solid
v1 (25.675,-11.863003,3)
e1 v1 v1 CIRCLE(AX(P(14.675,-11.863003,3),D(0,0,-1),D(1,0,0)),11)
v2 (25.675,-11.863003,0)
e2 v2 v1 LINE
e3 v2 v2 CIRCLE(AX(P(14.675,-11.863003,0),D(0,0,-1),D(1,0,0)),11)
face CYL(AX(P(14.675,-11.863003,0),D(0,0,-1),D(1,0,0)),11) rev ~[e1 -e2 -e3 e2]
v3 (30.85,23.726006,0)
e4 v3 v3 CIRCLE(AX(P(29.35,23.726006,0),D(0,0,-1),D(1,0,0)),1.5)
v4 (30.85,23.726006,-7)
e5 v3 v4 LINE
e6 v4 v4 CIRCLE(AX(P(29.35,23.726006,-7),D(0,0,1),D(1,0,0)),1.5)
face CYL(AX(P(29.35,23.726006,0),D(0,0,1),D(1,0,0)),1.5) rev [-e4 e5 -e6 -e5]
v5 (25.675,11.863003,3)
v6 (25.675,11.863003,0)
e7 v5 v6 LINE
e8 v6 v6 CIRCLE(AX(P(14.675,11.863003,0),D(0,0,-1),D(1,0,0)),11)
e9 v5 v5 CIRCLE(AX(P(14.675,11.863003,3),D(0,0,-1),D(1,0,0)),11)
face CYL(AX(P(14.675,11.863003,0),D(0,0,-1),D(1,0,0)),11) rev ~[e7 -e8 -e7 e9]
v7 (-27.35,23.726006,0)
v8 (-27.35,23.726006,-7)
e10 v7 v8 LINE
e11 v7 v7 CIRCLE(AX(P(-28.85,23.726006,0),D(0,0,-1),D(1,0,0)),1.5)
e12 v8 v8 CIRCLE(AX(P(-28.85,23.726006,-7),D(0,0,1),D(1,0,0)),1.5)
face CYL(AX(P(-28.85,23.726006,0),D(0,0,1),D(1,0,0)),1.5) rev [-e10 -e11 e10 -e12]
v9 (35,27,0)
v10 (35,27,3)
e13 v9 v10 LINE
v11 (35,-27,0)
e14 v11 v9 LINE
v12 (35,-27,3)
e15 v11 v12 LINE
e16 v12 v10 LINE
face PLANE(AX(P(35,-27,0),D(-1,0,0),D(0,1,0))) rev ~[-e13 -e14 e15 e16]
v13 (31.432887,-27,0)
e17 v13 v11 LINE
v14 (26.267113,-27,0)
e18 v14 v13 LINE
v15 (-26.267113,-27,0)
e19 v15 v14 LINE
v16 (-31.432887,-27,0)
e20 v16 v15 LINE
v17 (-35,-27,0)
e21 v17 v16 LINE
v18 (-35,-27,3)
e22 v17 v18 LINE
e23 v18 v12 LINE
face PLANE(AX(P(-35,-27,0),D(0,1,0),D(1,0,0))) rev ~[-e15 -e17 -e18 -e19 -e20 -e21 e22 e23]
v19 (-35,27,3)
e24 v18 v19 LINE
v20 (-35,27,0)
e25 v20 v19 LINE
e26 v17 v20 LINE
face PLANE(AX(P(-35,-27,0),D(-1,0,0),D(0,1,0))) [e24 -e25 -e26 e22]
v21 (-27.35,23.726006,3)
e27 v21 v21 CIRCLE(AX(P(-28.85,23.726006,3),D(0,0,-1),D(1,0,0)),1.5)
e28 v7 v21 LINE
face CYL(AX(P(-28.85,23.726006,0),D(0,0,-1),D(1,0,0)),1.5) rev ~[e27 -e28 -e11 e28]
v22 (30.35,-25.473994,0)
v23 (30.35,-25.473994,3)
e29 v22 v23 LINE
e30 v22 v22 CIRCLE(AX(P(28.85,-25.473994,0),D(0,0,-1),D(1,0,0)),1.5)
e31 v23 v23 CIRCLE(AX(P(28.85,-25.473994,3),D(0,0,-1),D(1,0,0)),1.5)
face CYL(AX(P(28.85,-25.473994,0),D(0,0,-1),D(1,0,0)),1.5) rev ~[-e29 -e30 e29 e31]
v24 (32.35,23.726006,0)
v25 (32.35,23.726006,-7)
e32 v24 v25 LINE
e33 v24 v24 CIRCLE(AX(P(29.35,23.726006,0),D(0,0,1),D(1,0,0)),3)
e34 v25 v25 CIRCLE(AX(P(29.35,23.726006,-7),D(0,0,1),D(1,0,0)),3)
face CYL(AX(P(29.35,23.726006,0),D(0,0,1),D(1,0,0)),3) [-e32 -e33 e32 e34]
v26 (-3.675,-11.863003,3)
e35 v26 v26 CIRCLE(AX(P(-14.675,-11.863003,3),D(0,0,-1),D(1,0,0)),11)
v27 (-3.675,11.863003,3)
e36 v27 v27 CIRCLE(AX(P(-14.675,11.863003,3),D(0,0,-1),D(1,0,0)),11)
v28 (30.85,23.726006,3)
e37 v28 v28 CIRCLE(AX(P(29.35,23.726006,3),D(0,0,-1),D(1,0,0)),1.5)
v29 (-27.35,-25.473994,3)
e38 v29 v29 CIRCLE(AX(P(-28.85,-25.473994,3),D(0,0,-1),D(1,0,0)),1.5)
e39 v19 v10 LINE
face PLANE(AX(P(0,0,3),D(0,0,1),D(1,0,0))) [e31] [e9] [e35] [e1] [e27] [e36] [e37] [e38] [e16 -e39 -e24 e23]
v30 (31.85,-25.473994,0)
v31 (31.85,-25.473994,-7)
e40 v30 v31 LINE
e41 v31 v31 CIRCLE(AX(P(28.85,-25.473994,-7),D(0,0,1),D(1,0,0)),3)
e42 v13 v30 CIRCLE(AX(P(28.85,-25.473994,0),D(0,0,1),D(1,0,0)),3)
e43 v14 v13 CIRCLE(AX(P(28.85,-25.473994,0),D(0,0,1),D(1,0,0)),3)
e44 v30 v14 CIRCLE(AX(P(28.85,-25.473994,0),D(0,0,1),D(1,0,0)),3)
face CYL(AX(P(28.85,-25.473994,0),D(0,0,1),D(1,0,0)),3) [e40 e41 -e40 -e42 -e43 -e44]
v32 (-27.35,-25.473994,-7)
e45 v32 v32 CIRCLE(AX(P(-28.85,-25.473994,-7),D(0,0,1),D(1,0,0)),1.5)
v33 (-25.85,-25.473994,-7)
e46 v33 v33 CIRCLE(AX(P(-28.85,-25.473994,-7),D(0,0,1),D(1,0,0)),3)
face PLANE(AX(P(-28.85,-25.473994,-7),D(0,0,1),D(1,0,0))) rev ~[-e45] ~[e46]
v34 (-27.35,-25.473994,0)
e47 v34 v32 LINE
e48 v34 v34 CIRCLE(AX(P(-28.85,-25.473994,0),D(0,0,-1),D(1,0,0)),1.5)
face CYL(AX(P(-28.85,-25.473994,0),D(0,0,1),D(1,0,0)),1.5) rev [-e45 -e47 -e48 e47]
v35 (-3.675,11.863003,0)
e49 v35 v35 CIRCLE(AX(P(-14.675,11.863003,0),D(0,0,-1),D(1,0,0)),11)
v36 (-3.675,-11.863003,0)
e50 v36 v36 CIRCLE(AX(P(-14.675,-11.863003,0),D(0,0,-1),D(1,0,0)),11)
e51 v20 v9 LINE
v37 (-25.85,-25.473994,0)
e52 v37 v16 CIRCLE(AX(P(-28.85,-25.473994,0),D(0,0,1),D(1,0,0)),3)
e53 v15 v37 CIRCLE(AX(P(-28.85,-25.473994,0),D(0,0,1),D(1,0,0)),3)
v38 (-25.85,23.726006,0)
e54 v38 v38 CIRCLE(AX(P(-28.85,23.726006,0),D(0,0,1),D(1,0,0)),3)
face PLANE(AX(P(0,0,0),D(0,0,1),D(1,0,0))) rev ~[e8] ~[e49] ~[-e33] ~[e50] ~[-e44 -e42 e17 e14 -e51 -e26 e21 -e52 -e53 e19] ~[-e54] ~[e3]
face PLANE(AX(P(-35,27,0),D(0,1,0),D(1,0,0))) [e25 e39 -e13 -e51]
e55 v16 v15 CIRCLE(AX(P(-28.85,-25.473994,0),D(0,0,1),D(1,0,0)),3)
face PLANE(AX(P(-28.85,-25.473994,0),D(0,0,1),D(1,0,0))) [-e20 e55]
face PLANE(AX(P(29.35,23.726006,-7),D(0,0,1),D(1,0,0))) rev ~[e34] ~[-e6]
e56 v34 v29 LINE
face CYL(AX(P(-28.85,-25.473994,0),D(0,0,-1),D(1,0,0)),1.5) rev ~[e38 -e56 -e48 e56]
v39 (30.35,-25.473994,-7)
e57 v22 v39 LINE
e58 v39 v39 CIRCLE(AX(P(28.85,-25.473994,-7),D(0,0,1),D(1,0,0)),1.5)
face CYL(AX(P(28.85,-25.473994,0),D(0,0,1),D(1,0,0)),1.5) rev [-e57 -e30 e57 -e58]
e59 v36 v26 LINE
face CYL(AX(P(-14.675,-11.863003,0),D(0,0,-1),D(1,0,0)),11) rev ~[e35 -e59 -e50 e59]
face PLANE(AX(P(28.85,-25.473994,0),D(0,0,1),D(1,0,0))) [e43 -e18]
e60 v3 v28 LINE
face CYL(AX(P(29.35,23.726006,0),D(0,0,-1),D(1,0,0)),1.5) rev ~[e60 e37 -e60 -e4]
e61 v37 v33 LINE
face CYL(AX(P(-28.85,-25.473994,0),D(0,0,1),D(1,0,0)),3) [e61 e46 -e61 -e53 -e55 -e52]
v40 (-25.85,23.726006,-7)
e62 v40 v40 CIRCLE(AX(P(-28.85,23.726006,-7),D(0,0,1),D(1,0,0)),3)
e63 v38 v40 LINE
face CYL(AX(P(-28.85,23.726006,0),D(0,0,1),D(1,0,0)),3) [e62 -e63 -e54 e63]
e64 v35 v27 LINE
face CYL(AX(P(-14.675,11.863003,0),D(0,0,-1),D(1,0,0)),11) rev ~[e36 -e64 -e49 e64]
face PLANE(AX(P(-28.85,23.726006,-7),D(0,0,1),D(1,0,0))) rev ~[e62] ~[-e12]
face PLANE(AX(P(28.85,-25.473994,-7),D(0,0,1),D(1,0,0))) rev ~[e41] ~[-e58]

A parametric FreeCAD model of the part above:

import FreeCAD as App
import Part
import Sketcher
from FreeCAD import Vector
Q = App.Units.Quantity


def add_polygon(sketch, points):
    """Adds a closed chain of lines whose ends are joined by coincident constraints."""
    first, n = sketch.GeometryCount, len(points)
    for a, b in zip(points, points[1:] + points[:1]):
        sketch.addGeometry(Part.LineSegment(App.Vector(*a, 0), App.Vector(*b, 0)), False)
    for i in range(n):
        sketch.addConstraint(Sketcher.Constraint("Coincident", first + i, 2, first + (i + 1) % n, 1))

doc = App.newDocument("Part")
body = doc.addObject("PartDesign::Body", "Body")
body.AllowCompound = True

# Sketch on XY plane
sketch1 = body.newObject("Sketcher::SketchObject", "Sketch")
sketch1.AttachmentSupport = (doc.getObject("XY_Plane"), [""])
sketch1.MapMode = "FlatFace"
sketch1.addGeometry([
    Part.Circle(Vector(-28.9, -25.5, 0), Vector(0, 0, 1), 1.5),  # 0
    Part.Circle(Vector(28.9, -25.5, 0), Vector(0, 0, 1), 1.5),  # 1
    Part.Circle(Vector(-28.9, 23.7, 0), Vector(0, 0, 1), 1.5),  # 2
    Part.Circle(Vector(29.4, 23.7, 0), Vector(0, 0, 1), 1.5),  # 3
    Part.Circle(Vector(-14.7, -11.9, 0), Vector(0, 0, 1), 11),  # 4
    Part.Circle(Vector(-14.7, 11.9, 0), Vector(0, 0, 1), 11),  # 5
    Part.Circle(Vector(14.7, -11.9, 0), Vector(0, 0, 1), 11),  # 6
    Part.Circle(Vector(14.7, 11.9, 0), Vector(0, 0, 1), 11),  # 7
], False)
sketch1.addConstraint([
    Sketcher.Constraint("Equal", 0, 1),
    Sketcher.Constraint("Equal", 1, 2),
    Sketcher.Constraint("Equal", 2, 3),
    Sketcher.Constraint("Equal", 4, 5),
    Sketcher.Constraint("Equal", 5, 6),
    Sketcher.Constraint("Equal", 6, 7),
    Sketcher.Constraint("Symmetric", 5, 3, 6, 3, -1, 1),
    Sketcher.Constraint("Symmetric", 4, 3, 7, 3, -1, 1),
    Sketcher.Constraint("Symmetric", 0, 3, 1, 3, -2),
    Sketcher.Constraint("Symmetric", 4, 3, 6, 3, -2),
    Sketcher.Constraint("Horizontal", 2, 3, 3, 3),
    Sketcher.Constraint("Vertical", 0, 3, 2, 3),
    Sketcher.Constraint("Diameter", 0, Q("3 mm")),
    Sketcher.Constraint("Diameter", 4, Q("22 mm")),
    Sketcher.Constraint("DistanceX", 0, 3, 1, 3, Q("57.7 mm")),
    Sketcher.Constraint("DistanceY", 0, 3, 2, 3, Q("49.2 mm")),
    Sketcher.Constraint("DistanceX", 1, 3, 3, 3, Q("0.5 mm")),
    Sketcher.Constraint("DistanceX", 4, 3, 6, 3, Q("29.35 mm")),
    Sketcher.Constraint("DistanceY", 0, 3, 4, 3, Q("13.610991 mm")),
    Sketcher.Constraint("DistanceY", 0, 3, -1, 1, Q("25.473994 mm")),
])
pad1 = body.newObject("PartDesign::Pad", "Pad")
pad1.Profile = sketch1
pad1.Length = 20
pad1.Midplane = True
body2 = doc.addObject("PartDesign::Body", "Body001")
body2.AllowCompound = True

# Sketch on XY plane
sketch2 = body2.newObject("Sketcher::SketchObject", "Sketch001")
sketch2.AttachmentSupport = (doc.getObject("XY_Plane001"), [""])
sketch2.MapMode = "FlatFace"
sketch2.addGeometry([
    Part.Circle(Vector(-28.9, 23.7, 0), Vector(0, 0, 1), 3),
    Part.Circle(Vector(29.4, 23.7, 0), Vector(0, 0, 1), 3),
    Part.Circle(Vector(-28.9, -25.5, 0), Vector(0, 0, 1), 3),
    Part.Circle(Vector(28.9, -25.5, 0), Vector(0, 0, 1), 3),
], False)
sketch2.addConstraint([
    Sketcher.Constraint("Equal", 0, 1),
    Sketcher.Constraint("Equal", 1, 2),
    Sketcher.Constraint("Equal", 2, 3),
    Sketcher.Constraint("Symmetric", 2, 3, 3, 3, -2),
    Sketcher.Constraint("Horizontal", 0, 3, 1, 3),
    Sketcher.Constraint("Vertical", 0, 3, 2, 3),
    Sketcher.Constraint("Diameter", 0, Q("6 mm")),
    Sketcher.Constraint("DistanceX", 0, 3, 1, 3, Q("58.2 mm")),
    Sketcher.Constraint("DistanceY", 2, 3, 0, 3, Q("49.2 mm")),
    Sketcher.Constraint("DistanceX", 3, 3, 1, 3, Q("0.5 mm")),
    Sketcher.Constraint("DistanceY", -1, 1, 0, 3, Q("23.726006 mm")),
])
pad2 = body2.newObject("PartDesign::Pad", "Pad001")
pad2.Profile = sketch2
pad2.Length = 7
pad2.Reversed = True
body3 = doc.addObject("PartDesign::Body", "Body002")

# Sketch on XY plane
sketch3 = body3.newObject("Sketcher::SketchObject", "Sketch002")
sketch3.AttachmentSupport = (doc.getObject("XY_Plane002"), [""])
sketch3.MapMode = "FlatFace"
add_polygon(sketch3, [(-35, 27), (-35, -27), (35, -27), (35, 27)])  # lines 0-3
sketch3.addConstraint([
    Sketcher.Constraint("Vertical", 0),
    Sketcher.Constraint("Horizontal", 1),
    Sketcher.Constraint("Vertical", 2),
    Sketcher.Constraint("Horizontal", 3),
    Sketcher.Constraint("Symmetric", 0, 2, 2, 2, -1, 1),
    Sketcher.Constraint("DistanceX", 1, 1, 1, 2, Q("70 mm")),
    Sketcher.Constraint("DistanceY", 0, 2, 0, 1, Q("54 mm")),
])
pad3 = body3.newObject("PartDesign::Pad", "Pad002")
pad3.Profile = sketch3
pad3.Length = 3
doc.recompute()

boolean = body3.newObject("PartDesign::Boolean", "Boolean")
boolean.Type = "Fuse"
boolean.addObjects([body2])
doc.recompute()

boolean2 = body3.newObject("PartDesign::Boolean", "Boolean001")
boolean2.Type = "Cut"
boolean2.addObjects([body])

doc.recompute()
